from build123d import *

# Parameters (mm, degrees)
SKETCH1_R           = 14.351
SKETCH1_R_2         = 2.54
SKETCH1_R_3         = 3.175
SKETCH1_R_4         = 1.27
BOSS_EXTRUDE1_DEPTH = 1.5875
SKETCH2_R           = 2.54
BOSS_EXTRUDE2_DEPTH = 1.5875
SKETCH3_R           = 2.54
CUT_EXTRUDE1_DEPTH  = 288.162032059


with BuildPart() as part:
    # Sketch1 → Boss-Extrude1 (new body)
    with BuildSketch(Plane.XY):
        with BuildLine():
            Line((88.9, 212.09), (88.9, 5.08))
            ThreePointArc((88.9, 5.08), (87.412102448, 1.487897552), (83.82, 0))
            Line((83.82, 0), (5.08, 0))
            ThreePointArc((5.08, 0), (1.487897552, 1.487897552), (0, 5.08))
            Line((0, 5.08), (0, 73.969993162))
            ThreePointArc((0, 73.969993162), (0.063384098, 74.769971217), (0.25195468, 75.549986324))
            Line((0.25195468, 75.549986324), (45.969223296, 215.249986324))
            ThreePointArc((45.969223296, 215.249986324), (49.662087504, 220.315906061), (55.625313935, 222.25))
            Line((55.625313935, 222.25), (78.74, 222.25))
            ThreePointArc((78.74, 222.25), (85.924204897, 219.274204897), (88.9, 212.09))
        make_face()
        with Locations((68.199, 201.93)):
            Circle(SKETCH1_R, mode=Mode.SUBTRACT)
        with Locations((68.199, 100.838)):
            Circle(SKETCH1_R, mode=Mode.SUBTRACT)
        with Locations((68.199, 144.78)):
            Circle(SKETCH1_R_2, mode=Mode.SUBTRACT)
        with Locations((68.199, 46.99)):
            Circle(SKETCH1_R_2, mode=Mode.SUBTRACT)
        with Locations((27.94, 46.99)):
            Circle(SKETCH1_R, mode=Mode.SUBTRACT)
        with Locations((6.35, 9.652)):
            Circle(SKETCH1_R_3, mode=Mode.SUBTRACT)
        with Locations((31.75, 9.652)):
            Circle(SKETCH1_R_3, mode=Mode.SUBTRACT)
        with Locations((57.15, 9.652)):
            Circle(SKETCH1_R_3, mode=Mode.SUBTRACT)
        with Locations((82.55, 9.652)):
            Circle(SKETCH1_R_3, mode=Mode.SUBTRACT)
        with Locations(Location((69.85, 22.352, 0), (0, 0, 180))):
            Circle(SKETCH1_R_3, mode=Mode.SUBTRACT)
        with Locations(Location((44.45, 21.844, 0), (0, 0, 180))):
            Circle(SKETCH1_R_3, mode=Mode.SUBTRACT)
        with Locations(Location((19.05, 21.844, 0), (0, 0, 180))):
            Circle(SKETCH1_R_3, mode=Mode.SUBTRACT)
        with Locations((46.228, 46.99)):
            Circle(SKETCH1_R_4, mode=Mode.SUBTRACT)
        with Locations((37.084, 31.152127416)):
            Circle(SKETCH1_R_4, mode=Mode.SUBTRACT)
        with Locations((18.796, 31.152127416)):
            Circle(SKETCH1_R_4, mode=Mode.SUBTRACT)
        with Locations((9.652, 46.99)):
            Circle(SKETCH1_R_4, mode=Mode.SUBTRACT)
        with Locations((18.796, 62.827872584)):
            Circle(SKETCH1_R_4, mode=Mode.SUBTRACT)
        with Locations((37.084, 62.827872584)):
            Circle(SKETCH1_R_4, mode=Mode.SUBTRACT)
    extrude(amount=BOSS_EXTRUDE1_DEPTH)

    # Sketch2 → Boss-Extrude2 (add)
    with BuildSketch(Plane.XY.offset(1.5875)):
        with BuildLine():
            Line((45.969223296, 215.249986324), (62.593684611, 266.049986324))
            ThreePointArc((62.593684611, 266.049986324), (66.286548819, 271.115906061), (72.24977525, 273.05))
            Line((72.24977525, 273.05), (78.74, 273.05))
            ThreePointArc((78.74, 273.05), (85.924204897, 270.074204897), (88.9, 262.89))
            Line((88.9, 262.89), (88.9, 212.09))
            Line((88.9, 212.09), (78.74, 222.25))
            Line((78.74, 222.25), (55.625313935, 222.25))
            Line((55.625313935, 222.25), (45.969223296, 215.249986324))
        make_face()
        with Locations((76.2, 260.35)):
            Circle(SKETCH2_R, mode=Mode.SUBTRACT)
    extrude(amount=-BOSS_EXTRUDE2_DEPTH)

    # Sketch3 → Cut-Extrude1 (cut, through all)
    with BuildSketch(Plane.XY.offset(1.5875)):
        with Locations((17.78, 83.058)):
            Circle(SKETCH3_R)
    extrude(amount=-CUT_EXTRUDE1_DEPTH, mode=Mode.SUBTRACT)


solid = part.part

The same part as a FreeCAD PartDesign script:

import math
import FreeCAD as App
import Part
import Sketcher
from FreeCAD import Vector
Q = App.Units.Quantity

doc = App.newDocument("Part")
body = doc.addObject("PartDesign::Body", "Body")

sketch1 = body.newObject("Sketcher::SketchObject", "Sketch")
sketch1.AttachmentSupport = (doc.getObject("XY_Plane"), [""])
sketch1.MapMode = "FlatFace"
sketch1.addGeometry([
    Part.LineSegment(Vector(88.9, 5.1, 0), Vector(88.9, 212.1, 0)),
    Part.ArcOfCircle(Part.Circle(Vector(78.7, 212.1, 0), Vector(0, 0, 1), 10.2), math.radians(0), math.radians(90)),
    Part.LineSegment(Vector(78.7, 222.2, 0), Vector(55.6, 222.2, 0)),
    Part.ArcOfCircle(Part.Circle(Vector(55.6, 212.1, 0), Vector(0, 0, 1), 10.2), math.radians(90), math.radians(162)),
    Part.LineSegment(Vector(46, 215.2, 0), Vector(0.3, 75.5, 0)),
    Part.ArcOfCircle(Part.Circle(Vector(5.1, 74, 0), Vector(0, 0, 1), 5.1), math.radians(161.88), math.radians(180)),
    Part.LineSegment(Vector(0, 74, 0), Vector(0, 5.1, 0)),
    Part.ArcOfCircle(Part.Circle(Vector(5.1, 5.1, 0), Vector(0, 0, 1), 5.1), math.radians(-180), math.radians(-90)),
    Part.LineSegment(Vector(5.1, 0, 0), Vector(83.8, 0, 0)),
    Part.ArcOfCircle(Part.Circle(Vector(83.8, 5.1, 0), Vector(0, 0, 1), 5.1), math.radians(-90), math.radians(0)),
    Part.Circle(Vector(82.5, 9.7, 0), Vector(0, 0, 1), 3.2),
    Part.Circle(Vector(69.8, 22.4, 0), Vector(0, 0, 1), 3.2),
    Part.Circle(Vector(68.2, 47, 0), Vector(0, 0, 1), 2.5),
    Part.Circle(Vector(57.1, 9.7, 0), Vector(0, 0, 1), 3.2),
    Part.Circle(Vector(46.2, 47, 0), Vector(0, 0, 1), 1.3),
    Part.Circle(Vector(68.2, 100.8, 0), Vector(0, 0, 1), 14.4),
    Part.Circle(Vector(44.5, 21.8, 0), Vector(0, 0, 1), 3.2),
    Part.Circle(Vector(37.1, 31.2, 0), Vector(0, 0, 1), 1.3),
    Part.Circle(Vector(31.8, 9.7, 0), Vector(0, 0, 1), 3.2),
    Part.Circle(Vector(27.9, 47, 0), Vector(0, 0, 1), 14.4),
    Part.Circle(Vector(19.1, 21.8, 0), Vector(0, 0, 1), 3.2),
    Part.Circle(Vector(18.8, 31.2, 0), Vector(0, 0, 1), 1.3),
    Part.Circle(Vector(6.3, 9.7, 0), Vector(0, 0, 1), 3.2),
    Part.Circle(Vector(9.7, 47, 0), Vector(0, 0, 1), 1.3),
    Part.Circle(Vector(37.1, 62.8, 0), Vector(0, 0, 1), 1.3),
    Part.Circle(Vector(18.8, 62.8, 0), Vector(0, 0, 1), 1.3),
    Part.Circle(Vector(68.2, 144.8, 0), Vector(0, 0, 1), 2.5),
    Part.Circle(Vector(68.2, 201.9, 0), Vector(0, 0, 1), 14.4),
], False)
sketch1.addConstraint([
    Sketcher.Constraint("Tangent", 0, 2, 1, 1),
    Sketcher.Constraint("Tangent", 1, 2, 2, 1),
    Sketcher.Constraint("Tangent", 2, 2, 3, 1),
    Sketcher.Constraint("Tangent", 3, 2, 4, 1),
    Sketcher.Constraint("Tangent", 4, 2, 5, 1),
    Sketcher.Constraint("Tangent", 5, 2, 6, 1),
    Sketcher.Constraint("Tangent", 6, 2, 7, 1),
    Sketcher.Constraint("Tangent", 7, 2, 8, 1),
    Sketcher.Constraint("Tangent", 8, 2, 9, 1),
    Sketcher.Constraint("Tangent", 9, 2, 0, 1),
    Sketcher.Constraint("Vertical", 0),
    Sketcher.Constraint("Horizontal", 2),
    Sketcher.Constraint("Vertical", 6),
    Sketcher.Constraint("Horizontal", 8),
    Sketcher.Constraint("Equal", 1, 3),
    Sketcher.Constraint("Equal", 5, 7),
    Sketcher.Constraint("Equal", 7, 9),
    Sketcher.Constraint("Equal", 10, 11),
    Sketcher.Constraint("Equal", 11, 13),
    Sketcher.Constraint("Equal", 13, 16),
    Sketcher.Constraint("Equal", 14, 17),
    Sketcher.Constraint("Equal", 16, 18),
    Sketcher.Constraint("Equal", 15, 19),
    Sketcher.Constraint("Equal", 18, 20),
    Sketcher.Constraint("Equal", 17, 21),
    Sketcher.Constraint("Equal", 20, 22),
    Sketcher.Constraint("Equal", 21, 23),
    Sketcher.Constraint("Equal", 23, 24),
    Sketcher.Constraint("Equal", 24, 25),
    Sketcher.Constraint("Equal", 12, 26),
    Sketcher.Constraint("Equal", 19, 27),
    Sketcher.Constraint("PointOnObject", 5, 2, -2),
    Sketcher.Constraint("PointOnObject", 7, 2, -1),
    Sketcher.Constraint("Horizontal", 10, 3, 13, 3),
    Sketcher.Constraint("Horizontal", 12, 3, 14, 3),
    Sketcher.Constraint("Horizontal", 13, 3, 18, 3),
    Sketcher.Constraint("Horizontal", 14, 3, 19, 3),
    Sketcher.Constraint("Horizontal", 16, 3, 20, 3),
    Sketcher.Constraint("Horizontal", 17, 3, 21, 3),
    Sketcher.Constraint("Horizontal", 18, 3, 22, 3),
    Sketcher.Constraint("Horizontal", 19, 3, 23, 3),
    Sketcher.Constraint("Horizontal", 24, 3, 25, 3),
    Sketcher.Constraint("Vertical", 12, 3, 15, 3),
    Sketcher.Constraint("Vertical", 17, 3, 24, 3),
    Sketcher.Constraint("Vertical", 21, 3, 25, 3),
    Sketcher.Constraint("Vertical", 15, 3, 26, 3),
    Sketcher.Constraint("Vertical", 26, 3, 27, 3),
    Sketcher.Constraint("Diameter", 12, Q("0.2 in")),
    Sketcher.Constraint("Diameter", 14, Q("0.1 in")),
    Sketcher.Constraint("Radius", 1, Q("0.4 in")),
    Sketcher.Constraint("Radius", 5, Q("0.2 in")),
    Sketcher.Constraint("Diameter", 10, Q("0.25 in")),
    Sketcher.Constraint("Diameter", 15, Q("1.13 in")),
    Sketcher.Constraint("DistanceX", 8, 1, 8, 2, Q("3.1 in")),
    Sketcher.Constraint("DistanceX", 13, 3, 10, 3, Q("1 in")),
    Sketcher.Constraint("DistanceX", 16, 3, 11, 3, Q("1 in")),
    Sketcher.Constraint("DistanceX", 18, 3, 13, 3, Q("1 in")),
    Sketcher.Constraint("DistanceX", 20, 3, 16, 3, Q("1 in")),
    Sketcher.Constraint("DistanceX", 22, 3, 18, 3, Q("1 in")),
    Sketcher.Constraint("DistanceY", 0, 1, 0, 2, Q("8.15 in")),
    Sketcher.Constraint("DistanceX", -1, 1, 19, 3, Q("1.1 in")),
    Sketcher.Constraint("DistanceY", -1, 1, 26, 3, Q("5.7 in")),
    Sketcher.Constraint("DistanceX", 11, 3, 10, 3, Q("0.5 in")),
    Sketcher.Constraint("DistanceY", 10, 3, 11, 3, Q("0.5 in")),
    Sketcher.Constraint("DistanceY", 27, 3, 1, 3, Q("0.4 in")),
    Sketcher.Constraint("DistanceX", -1, 1, 10, 3, Q("3.25 in")),
    Sketcher.Constraint("DistanceY", -1, 1, 10, 3, Q("0.38 in")),
    Sketcher.Constraint("DistanceY", -1, 1, 12, 3, Q("1.85 in")),
    Sketcher.Constraint("DistanceX", -1, 1, 14, 3, Q("1.82 in")),
    Sketcher.Constraint("DistanceY", -1, 1, 15, 3, Q("3.97 in")),
    Sketcher.Constraint("DistanceY", -1, 1, 16, 3, Q("0.86 in")),
    Sketcher.Constraint("DistanceX", -1, 1, 17, 3, Q("1.46 in")),
    Sketcher.Constraint("DistanceX", -1, 1, 21, 3, Q("0.74 in")),
    Sketcher.Constraint("DistanceX", -1, 1, 23, 3, Q("0.38 in")),
    Sketcher.Constraint("DistanceX", -1, 1, 12, 3, Q("2.685 in")),
    Sketcher.Constraint("DistanceX", 2, 2, 2, 1, Q("23.114686 mm")),
    Sketcher.Constraint("DistanceY", 6, 2, 6, 1, Q("68.889993 mm")),
    Sketcher.Constraint("DistanceY", 24, 3, 5, 3, Q("11.142121 mm")),
    Sketcher.Constraint("DistanceY", -1, 1, 17, 3, Q("31.152127 mm")),
])
pad1 = body.newObject("PartDesign::Pad", "Pad")
pad1.Profile = sketch1
pad1.Length = Q("0.0625 in")

sketch2 = body.newObject("Sketcher::SketchObject", "Sketch001")
sketch2.AttachmentSupport = (doc.getObject("XY_Plane"), [""])
sketch2.MapMode = "FlatFace"
sketch2.AttachmentOffset = App.Placement(Vector(0, 0, 0.0625 * 25.4), App.Rotation())
sketch2.addGeometry([
    Part.LineSegment(Vector(62.6, 266, 0), Vector(46, 215.2, 0)),
    Part.LineSegment(Vector(46, 215.2, 0), Vector(55.6, 222.2, 0)),
    Part.LineSegment(Vector(55.6, 222.2, 0), Vector(78.7, 222.2, 0)),
    Part.LineSegment(Vector(78.7, 222.2, 0), Vector(88.9, 212.1, 0)),
    Part.LineSegment(Vector(88.9, 212.1, 0), Vector(88.9, 262.9, 0)),
    Part.ArcOfCircle(Part.Circle(Vector(78.7, 262.9, 0), Vector(0, 0, 1), 10.2), math.radians(0), math.radians(90)),
    Part.LineSegment(Vector(78.7, 273.1, 0), Vector(72.2, 273.1, 0)),
    Part.ArcOfCircle(Part.Circle(Vector(72.2, 262.9, 0), Vector(0, 0, 1), 10.2), math.radians(90), math.radians(162)),
    Part.Circle(Vector(76.2, 260.4, 0), Vector(0, 0, 1), 2.5),
], False)
sketch2.addConstraint([
    Sketcher.Constraint("Coincident", 0, 2, 1, 1),
    Sketcher.Constraint("Coincident", 1, 2, 2, 1),
    Sketcher.Constraint("Coincident", 2, 2, 3, 1),
    Sketcher.Constraint("Coincident", 3, 2, 4, 1),
    Sketcher.Constraint("Tangent", 4, 2, 5, 1),
    Sketcher.Constraint("Tangent", 5, 2, 6, 1),
    Sketcher.Constraint("Tangent", 6, 2, 7, 1),
    Sketcher.Constraint("Tangent", 7, 2, 0, 1),
    Sketcher.Constraint("Horizontal", 2),
    Sketcher.Constraint("Vertical", 4),
    Sketcher.Constraint("Horizontal", 6),
    Sketcher.Constraint("Equal", 5, 7),
    Sketcher.Constraint("Vertical", 5, 3, 2, 2),
    Sketcher.Constraint("Diameter", 8, Q("0.2 in")),
    Sketcher.Constraint("Radius", 5, Q("0.4 in")),
    Sketcher.Constraint("DistanceY", 4, 1, 4, 2, Q("2 in")),
    Sketcher.Constraint("DistanceX", -1, 1, 8, 3, Q("3 in")),
    Sketcher.Constraint("Angle", 3, Q("-45 deg")),
    Sketcher.Constraint("DistanceX", -1, 1, 5, 3, Q("3.1 in")),
    Sketcher.Constraint("DistanceY", 8, 3, 5, 3, Q("0.1 in")),
    Sketcher.Constraint("DistanceY", -1, 1, 5, 3, Q("10.35 in")),
    Sketcher.Constraint("Distance", 0, Q("53.451031 mm")),
    Sketcher.Constraint("DistanceX", 2, 1, 2, 2, Q("23.114686 mm")),
    Sketcher.Constraint("DistanceX", 6, 2, 6, 1, Q("6.490225 mm")),
    Sketcher.Constraint("DistanceX", 0, 2, 7, 3, Q("26.280552 mm")),
])
pad2 = body.newObject("PartDesign::Pad", "Pad001")
pad2.Profile = sketch2
pad2.Length = Q("0.0625 in")
pad2.Reversed = True

sketch3 = body.newObject("Sketcher::SketchObject", "Sketch002")
sketch3.AttachmentSupport = (doc.getObject("XY_Plane"), [""])
sketch3.MapMode = "FlatFace"
sketch3.AttachmentOffset = App.Placement(Vector(0, 0, 0.0625 * 25.4), App.Rotation())
sketch3.addGeometry(Part.Circle(Vector(17.8, 83.1, 0), Vector(0, 0, 1), 2.5), False)
sketch3.addConstraint([
    Sketcher.Constraint("Diameter", 0, Q("0.2 in")),
    Sketcher.Constraint("DistanceX", -1, 1, 0, 3, Q("0.7 in")),
    Sketcher.Constraint("DistanceY", -1, 1, 0, 3, Q("3.27 in")),
])
pocket1 = body.newObject("PartDesign::Pocket", "Pocket")
pocket1.Profile = sketch3
pocket1.Type = "ThroughAll"

doc.recompute()
